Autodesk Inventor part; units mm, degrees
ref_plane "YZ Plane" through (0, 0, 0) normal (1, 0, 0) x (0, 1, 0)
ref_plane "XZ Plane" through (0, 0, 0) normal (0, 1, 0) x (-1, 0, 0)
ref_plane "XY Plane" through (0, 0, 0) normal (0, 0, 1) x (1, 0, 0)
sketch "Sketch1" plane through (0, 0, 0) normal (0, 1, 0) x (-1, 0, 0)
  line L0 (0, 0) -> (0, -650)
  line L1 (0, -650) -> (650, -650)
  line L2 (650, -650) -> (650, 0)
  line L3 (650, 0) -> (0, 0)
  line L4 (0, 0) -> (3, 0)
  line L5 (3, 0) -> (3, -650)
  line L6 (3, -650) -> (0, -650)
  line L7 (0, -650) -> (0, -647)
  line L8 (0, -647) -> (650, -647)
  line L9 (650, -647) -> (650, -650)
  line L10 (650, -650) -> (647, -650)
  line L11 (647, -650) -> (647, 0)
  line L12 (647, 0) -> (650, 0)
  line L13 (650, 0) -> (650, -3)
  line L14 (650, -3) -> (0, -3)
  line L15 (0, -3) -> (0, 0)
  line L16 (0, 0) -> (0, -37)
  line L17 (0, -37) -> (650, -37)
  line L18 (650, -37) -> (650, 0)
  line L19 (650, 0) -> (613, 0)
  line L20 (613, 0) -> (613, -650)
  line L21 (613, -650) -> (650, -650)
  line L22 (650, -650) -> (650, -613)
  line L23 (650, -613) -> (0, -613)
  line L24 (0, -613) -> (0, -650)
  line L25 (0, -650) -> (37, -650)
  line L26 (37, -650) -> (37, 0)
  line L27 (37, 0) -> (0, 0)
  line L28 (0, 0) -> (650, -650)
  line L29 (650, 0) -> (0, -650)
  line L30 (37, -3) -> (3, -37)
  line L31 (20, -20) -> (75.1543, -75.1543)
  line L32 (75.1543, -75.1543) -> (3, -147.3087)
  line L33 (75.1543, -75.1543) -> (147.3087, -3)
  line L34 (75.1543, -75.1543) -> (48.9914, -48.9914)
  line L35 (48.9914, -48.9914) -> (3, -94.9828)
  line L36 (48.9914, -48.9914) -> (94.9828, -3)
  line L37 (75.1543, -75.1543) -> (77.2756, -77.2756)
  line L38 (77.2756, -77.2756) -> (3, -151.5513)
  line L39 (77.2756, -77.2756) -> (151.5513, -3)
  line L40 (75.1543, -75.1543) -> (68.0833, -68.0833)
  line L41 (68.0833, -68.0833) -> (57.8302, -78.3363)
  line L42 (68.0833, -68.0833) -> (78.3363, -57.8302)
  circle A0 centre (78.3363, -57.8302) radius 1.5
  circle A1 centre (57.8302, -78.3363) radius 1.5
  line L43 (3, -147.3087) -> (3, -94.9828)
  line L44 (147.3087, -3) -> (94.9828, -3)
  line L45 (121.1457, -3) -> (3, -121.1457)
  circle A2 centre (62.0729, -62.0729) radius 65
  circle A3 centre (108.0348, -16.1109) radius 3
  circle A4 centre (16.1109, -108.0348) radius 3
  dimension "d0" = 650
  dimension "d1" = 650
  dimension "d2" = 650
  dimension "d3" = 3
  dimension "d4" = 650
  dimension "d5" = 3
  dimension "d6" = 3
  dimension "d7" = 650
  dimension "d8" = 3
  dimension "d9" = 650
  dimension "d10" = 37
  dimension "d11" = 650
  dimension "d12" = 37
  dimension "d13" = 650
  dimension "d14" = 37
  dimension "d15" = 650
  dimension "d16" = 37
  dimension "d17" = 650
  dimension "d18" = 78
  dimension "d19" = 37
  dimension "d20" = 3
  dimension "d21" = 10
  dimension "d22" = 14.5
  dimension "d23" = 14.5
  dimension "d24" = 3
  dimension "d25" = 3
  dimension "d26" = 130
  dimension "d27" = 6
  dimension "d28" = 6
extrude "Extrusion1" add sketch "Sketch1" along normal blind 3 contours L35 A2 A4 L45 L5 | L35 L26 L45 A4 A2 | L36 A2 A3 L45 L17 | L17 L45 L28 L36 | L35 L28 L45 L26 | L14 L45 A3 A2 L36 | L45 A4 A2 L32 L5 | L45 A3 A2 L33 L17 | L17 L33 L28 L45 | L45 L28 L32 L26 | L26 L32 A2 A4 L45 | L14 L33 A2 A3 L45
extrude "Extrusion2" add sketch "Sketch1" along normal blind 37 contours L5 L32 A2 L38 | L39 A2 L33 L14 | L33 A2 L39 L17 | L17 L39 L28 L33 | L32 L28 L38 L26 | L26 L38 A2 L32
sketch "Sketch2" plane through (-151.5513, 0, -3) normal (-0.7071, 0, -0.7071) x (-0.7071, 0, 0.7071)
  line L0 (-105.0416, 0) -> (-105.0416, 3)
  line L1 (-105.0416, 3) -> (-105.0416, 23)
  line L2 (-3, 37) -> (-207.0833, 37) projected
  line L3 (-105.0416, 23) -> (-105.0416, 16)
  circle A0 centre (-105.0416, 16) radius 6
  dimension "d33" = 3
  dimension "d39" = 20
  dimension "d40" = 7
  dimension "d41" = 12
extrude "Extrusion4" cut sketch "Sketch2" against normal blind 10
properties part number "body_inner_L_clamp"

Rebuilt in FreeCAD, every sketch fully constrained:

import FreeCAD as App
import Part
import Sketcher


def add_polygon(sketch, points):
    """Adds a closed chain of lines whose ends are joined by coincident constraints."""
    first, n = sketch.GeometryCount, len(points)
    for a, b in zip(points, points[1:] + points[:1]):
        sketch.addGeometry(Part.LineSegment(App.Vector(*a, 0), App.Vector(*b, 0)), False)
    for i in range(n):
        sketch.addConstraint(Sketcher.Constraint("Coincident", first + i, 2, first + (i + 1) % n, 1))

doc = App.newDocument("Part")
body = doc.addObject("PartDesign::Body", "Body")

sketch1 = doc.addObject("Sketcher::SketchObject", "Sketch")
body.addObject(sketch1)
sketch1.AttachmentSupport = (doc.XZ_Plane, [""])
sketch1.MapMode = "FlatFace"
add_polygon(sketch1, [(-3, -95), (-3, -147.3), (-75.2, -75.2), (-147.3, -3), (-95, -3)])
sketch1.addGeometry(Part.Circle(App.Vector(-16.1, -108, 0), App.Vector(0, 0, 1), 3), False)
sketch1.addGeometry(Part.Circle(App.Vector(-57.8, -78.3, 0), App.Vector(0, 0, 1), 1.5), False)
sketch1.addGeometry(Part.Circle(App.Vector(-108, -16.1, 0), App.Vector(0, 0, 1), 3), False)
sketch1.addGeometry(Part.Circle(App.Vector(-78.3, -57.8, 0), App.Vector(0, 0, 1), 1.5), False)
sketch1.addConstraint([
    Sketcher.Constraint("Vertical", 0),
    Sketcher.Constraint("Horizontal", 3),
    Sketcher.Constraint("Equal", 5, 7),
    Sketcher.Constraint("Equal", 6, 8),
    Sketcher.Constraint("Parallel", 1, 2),
    Sketcher.Constraint("Parallel", 2, 4),
    Sketcher.Constraint("Equal", 3, 0),
    Sketcher.Constraint("Equal", 1, 2),
    Sketcher.Constraint("Diameter", 5, 6.0),
    Sketcher.Constraint("Diameter", 6, 3.0),
    Sketcher.Constraint("DistanceX", 0, 2, -1, 1, 3.0),
    Sketcher.Constraint("DistanceY", 2, 2, -1, 1, 3.0),
    Sketcher.Constraint("DistanceX", 3, 1, 3, 2, 52.326),
    Sketcher.Constraint("DistanceX", 5, 3, -1, 1, 16.111),
    Sketcher.Constraint("DistanceY", 7, 3, -1, 1, 16.111),
    Sketcher.Constraint("DistanceX", 7, 3, 5, 3, 91.924),
    Sketcher.Constraint("DistanceY", 5, 3, 7, 3, 91.924),
    Sketcher.Constraint("DistanceX", 8, 3, 6, 3, 20.506),
    Sketcher.Constraint("DistanceY", 6, 3, 8, 3, 20.506),
    Sketcher.Constraint("DistanceY", 0, 2, 5, 3, 39.274),
    Sketcher.Constraint("DistanceX", 1, 2, 6, 3, 17.324),
    Sketcher.Constraint("DistanceY", 6, 3, 1, 2, 3.182),
])
pad1 = doc.addObject("PartDesign::Pad", "Pad")
body.addObject(pad1)
pad1.Profile = sketch1
pad1.Length = 3
pad1.Reversed = True

sketch2 = doc.addObject("Sketcher::SketchObject", "Sketch001")
body.addObject(sketch2)
sketch2.AttachmentSupport = (doc.XZ_Plane, [""])
sketch2.MapMode = "FlatFace"
add_polygon(sketch2, [(-3, -147.3), (-3, -151.6), (-77.3, -77.3), (-151.6, -3), (-147.3, -3), (-75.2, -75.2)])
sketch2.addConstraint([
    Sketcher.Constraint("Vertical", 0),
    Sketcher.Constraint("Horizontal", 3),
    Sketcher.Constraint("Parallel", 1, 2),
    Sketcher.Constraint("Parallel", 2, 4),
    Sketcher.Constraint("Parallel", 4, 5),
    Sketcher.Constraint("Equal", 3, 0),
    Sketcher.Constraint("Equal", 1, 2),
    Sketcher.Constraint("Equal", 4, 5),
    Sketcher.Constraint("DistanceX", 0, 2, -1, 1, 3.0),
    Sketcher.Constraint("DistanceY", 2, 2, -1, 1, 3.0),
    Sketcher.Constraint("DistanceX", 3, 1, 3, 2, 4.2426),
    Sketcher.Constraint("DistanceX", 3, 2, 1, 2, 70.033),
])
pad2 = doc.addObject("PartDesign::Pad", "Pad001")
body.addObject(pad2)
pad2.Profile = sketch2
pad2.Length = 37
pad2.Reversed = True

sketch3 = doc.addObject("Sketcher::SketchObject", "Sketch002")
body.addObject(sketch3)
sketch3.Placement = App.Placement(App.Vector(-151.5513, 0, -3), App.Rotation(App.Vector(-0.707106781, 0, 0.707106781), App.Vector(0, 0.999999999, 0), App.Vector(-0.707106781, 0, -0.707106781), "ZXY"))
sketch3.addGeometry(Part.Circle(App.Vector(-105, 16, 0), App.Vector(0, 0, 1), 6), False)
sketch3.addConstraint([
    Sketcher.Constraint("Diameter", 0, 12.0),
    Sketcher.Constraint("DistanceY", -1, 1, 0, 3, 16.0),
    Sketcher.Constraint("DistanceX", 0, 3, -1, 1, 105.0416),
])
pocket1 = doc.addObject("PartDesign::Pocket", "Pocket")
body.addObject(pocket1)
pocket1.Profile = sketch3
pocket1.Length = 10

doc.recompute()
